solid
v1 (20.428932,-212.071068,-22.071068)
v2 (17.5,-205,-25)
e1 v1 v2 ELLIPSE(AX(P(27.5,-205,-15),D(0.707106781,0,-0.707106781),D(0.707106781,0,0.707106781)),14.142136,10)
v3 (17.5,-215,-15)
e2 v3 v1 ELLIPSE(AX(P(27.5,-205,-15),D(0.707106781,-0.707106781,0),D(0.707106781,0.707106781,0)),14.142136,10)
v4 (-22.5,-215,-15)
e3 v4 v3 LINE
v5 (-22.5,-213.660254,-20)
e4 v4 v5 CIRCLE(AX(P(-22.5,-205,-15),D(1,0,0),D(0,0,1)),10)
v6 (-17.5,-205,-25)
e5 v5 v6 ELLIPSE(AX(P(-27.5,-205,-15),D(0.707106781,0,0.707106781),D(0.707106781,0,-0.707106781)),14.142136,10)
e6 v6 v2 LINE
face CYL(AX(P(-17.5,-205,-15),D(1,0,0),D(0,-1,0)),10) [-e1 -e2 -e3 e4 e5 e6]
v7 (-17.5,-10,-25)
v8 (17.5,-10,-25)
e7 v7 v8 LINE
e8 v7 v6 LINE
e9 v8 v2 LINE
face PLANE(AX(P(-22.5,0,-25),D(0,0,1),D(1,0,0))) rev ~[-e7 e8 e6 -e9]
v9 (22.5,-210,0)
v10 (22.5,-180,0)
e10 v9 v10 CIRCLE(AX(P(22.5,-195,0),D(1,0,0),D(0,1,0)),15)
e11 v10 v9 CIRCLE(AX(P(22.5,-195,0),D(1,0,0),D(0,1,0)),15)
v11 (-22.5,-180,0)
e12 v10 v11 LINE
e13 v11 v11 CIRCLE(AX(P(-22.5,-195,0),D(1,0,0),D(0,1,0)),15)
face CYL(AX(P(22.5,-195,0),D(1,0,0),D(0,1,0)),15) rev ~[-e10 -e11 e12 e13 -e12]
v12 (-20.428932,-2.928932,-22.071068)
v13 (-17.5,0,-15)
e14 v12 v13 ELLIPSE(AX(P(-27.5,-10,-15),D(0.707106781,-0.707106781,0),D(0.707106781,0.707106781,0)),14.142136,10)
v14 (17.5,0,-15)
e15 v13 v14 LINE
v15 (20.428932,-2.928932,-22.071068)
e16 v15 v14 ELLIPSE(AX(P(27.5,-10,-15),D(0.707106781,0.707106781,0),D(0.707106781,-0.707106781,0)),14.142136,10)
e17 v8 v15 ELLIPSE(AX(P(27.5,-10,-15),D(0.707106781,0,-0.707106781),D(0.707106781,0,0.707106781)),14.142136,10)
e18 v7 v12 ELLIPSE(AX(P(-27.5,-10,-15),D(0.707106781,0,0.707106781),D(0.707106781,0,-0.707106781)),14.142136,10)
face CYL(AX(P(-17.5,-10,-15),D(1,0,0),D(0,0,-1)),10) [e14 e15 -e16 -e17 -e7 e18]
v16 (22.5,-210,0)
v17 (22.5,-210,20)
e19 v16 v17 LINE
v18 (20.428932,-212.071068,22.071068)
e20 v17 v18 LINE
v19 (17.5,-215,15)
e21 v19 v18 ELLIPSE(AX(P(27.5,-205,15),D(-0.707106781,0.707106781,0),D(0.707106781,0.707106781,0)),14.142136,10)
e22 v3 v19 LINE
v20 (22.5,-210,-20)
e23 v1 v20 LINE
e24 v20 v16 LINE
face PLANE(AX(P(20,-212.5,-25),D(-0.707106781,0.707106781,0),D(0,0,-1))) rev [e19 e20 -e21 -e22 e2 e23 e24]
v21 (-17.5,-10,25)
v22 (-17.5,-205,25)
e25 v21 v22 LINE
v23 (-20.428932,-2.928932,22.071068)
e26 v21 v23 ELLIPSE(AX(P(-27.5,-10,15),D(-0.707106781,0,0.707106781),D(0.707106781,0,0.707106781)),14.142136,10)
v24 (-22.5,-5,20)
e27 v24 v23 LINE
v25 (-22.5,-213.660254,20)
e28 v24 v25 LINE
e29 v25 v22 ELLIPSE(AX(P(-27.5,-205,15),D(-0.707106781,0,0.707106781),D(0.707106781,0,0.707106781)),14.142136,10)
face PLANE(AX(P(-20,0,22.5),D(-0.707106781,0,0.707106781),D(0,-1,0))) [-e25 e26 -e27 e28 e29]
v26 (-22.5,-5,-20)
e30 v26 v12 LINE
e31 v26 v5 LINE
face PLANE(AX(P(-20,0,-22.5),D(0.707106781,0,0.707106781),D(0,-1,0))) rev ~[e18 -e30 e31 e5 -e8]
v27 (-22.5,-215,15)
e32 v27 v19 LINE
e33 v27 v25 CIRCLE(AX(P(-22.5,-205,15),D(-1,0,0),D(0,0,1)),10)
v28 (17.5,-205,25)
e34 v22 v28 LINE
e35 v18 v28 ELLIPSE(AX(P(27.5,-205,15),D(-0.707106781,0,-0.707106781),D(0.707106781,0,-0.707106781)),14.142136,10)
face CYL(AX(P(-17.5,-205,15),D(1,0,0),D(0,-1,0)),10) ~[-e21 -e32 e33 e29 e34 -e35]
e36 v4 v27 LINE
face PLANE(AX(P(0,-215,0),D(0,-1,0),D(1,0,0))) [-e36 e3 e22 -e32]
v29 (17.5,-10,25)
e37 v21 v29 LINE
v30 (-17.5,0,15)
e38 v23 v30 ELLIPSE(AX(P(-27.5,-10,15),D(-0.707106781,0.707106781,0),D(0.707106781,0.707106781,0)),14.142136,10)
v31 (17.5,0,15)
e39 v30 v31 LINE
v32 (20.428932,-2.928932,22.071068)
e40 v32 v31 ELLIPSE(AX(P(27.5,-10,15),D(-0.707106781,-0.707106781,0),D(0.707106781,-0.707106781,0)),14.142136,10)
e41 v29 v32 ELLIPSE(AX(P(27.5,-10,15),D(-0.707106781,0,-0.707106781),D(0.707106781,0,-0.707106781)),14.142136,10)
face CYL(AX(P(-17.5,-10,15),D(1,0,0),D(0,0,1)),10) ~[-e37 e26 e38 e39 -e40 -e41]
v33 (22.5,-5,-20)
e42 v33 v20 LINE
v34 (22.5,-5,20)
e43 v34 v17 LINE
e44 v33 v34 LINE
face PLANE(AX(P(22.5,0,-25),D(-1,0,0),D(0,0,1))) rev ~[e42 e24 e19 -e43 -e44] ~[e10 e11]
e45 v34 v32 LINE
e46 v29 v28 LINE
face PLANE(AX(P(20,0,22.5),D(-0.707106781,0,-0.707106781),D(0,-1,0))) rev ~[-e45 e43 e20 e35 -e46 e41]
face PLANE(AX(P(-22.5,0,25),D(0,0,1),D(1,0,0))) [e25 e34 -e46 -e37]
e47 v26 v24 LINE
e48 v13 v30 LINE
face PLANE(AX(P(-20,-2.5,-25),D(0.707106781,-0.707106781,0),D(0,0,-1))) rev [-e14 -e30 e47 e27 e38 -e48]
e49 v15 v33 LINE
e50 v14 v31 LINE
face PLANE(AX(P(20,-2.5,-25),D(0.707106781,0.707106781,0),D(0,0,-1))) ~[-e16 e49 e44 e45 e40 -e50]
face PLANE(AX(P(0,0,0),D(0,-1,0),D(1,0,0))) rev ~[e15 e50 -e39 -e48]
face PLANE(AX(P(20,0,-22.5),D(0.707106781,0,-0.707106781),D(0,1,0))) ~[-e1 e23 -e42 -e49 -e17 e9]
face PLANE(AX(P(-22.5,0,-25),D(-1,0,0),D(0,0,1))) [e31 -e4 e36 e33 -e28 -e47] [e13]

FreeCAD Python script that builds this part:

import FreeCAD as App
import Part
import Sketcher

V = App.Vector
Q = App.Units.Quantity


def edges_at(feature, points):
    """Names of the edges that pass closest to the given points."""
    edges = feature.Shape.Edges
    near = lambda p: min(range(len(edges)), key=lambda i: edges[i].distToShape(Part.Vertex(*p))[0])
    return sorted({f"Edge{near(p) + 1}" for p in points})


def add_polygon(sketch, points):
    """Adds a closed chain of lines whose ends are joined by coincident constraints."""
    first, n = sketch.GeometryCount, len(points)
    for a, b in zip(points, points[1:] + points[:1]):
        sketch.addGeometry(Part.LineSegment(App.Vector(*a, 0), App.Vector(*b, 0)), False)
    for i in range(n):
        sketch.addConstraint(Sketcher.Constraint("Coincident", first + i, 2, first + (i + 1) % n, 1))

doc = App.newDocument("Part")
body = doc.addObject("PartDesign::Body", "Body")

# Sketch on XZ plane
sketch1 = doc.addObject("Sketcher::SketchObject", "Sketch")
body.addObject(sketch1)
sketch1.AttachmentSupport = (doc.XZ_Plane, [""])
sketch1.MapMode = "FlatFace"
add_polygon(sketch1, [(-22, 25), (-22, -25), (22, -25), (22, 25)])  # lines 0-3
sketch1.addConstraint([
    Sketcher.Constraint("Vertical", 0),
    Sketcher.Constraint("Horizontal", 1),
    Sketcher.Constraint("Vertical", 2),
    Sketcher.Constraint("Horizontal", 3),
    Sketcher.Constraint("Symmetric", 0, 2, 2, 2, -1, 1),
    Sketcher.Constraint("DistanceX", 1, 1, 1, 2, Q("45 mm")),
    Sketcher.Constraint("DistanceY", 0, 2, 0, 1, Q("50 mm")),
])
pad1 = doc.addObject("PartDesign::Pad", "Pad")
body.addObject(pad1)
pad1.Profile = sketch1
pad1.Length = 215
doc.recompute()

chamfer = doc.addObject("PartDesign::Chamfer", "Chamfer")
body.addObject(chamfer)
chamfer.Base = (pad1, edges_at(pad1, [
    (22.5, -107.5, 25),
    (-22.5, -107.5, 25),
    (22.5, -107.5, -25),
    (-22.5, -107.5, -25),
    (22.5, -215, 0),
    (22.5, 0, 0),
    (-22.5, 0, 0),
]))
chamfer.Size = 5
doc.recompute()

fillet = doc.addObject("PartDesign::Fillet", "Fillet")
body.addObject(fillet)
fillet.Base = (chamfer, edges_at(chamfer, [
    (0, -215, 25),
    (0, -215, -25),
    (0, 0, 25),
    (0, 0, -25),
]))
fillet.Radius = 10

# Sketch on YZ plane
sketch2 = doc.addObject("Sketcher::SketchObject", "Sketch001")
body.addObject(sketch2)
sketch2.AttachmentSupport = (doc.YZ_Plane, [""])
sketch2.MapMode = "FlatFace"
sketch2.AttachmentOffset = App.Placement(V(0, 0, 22.5), App.Rotation())
sketch2.addGeometry(Part.Circle(V(-195, 0, 0), V(0, 0, 1), 15), False)
sketch2.addConstraint([
    Sketcher.Constraint("PointOnObject", 0, 3, -1),
    Sketcher.Constraint("Diameter", 0, Q("30 mm")),
    Sketcher.Constraint("DistanceX", 0, 3, -1, 1, Q("195 mm")),
])
pocket1 = doc.addObject("PartDesign::Pocket", "Pocket")
body.addObject(pocket1)
pocket1.Profile = sketch2
pocket1.Type = "ThroughAll"

doc.recompute()
